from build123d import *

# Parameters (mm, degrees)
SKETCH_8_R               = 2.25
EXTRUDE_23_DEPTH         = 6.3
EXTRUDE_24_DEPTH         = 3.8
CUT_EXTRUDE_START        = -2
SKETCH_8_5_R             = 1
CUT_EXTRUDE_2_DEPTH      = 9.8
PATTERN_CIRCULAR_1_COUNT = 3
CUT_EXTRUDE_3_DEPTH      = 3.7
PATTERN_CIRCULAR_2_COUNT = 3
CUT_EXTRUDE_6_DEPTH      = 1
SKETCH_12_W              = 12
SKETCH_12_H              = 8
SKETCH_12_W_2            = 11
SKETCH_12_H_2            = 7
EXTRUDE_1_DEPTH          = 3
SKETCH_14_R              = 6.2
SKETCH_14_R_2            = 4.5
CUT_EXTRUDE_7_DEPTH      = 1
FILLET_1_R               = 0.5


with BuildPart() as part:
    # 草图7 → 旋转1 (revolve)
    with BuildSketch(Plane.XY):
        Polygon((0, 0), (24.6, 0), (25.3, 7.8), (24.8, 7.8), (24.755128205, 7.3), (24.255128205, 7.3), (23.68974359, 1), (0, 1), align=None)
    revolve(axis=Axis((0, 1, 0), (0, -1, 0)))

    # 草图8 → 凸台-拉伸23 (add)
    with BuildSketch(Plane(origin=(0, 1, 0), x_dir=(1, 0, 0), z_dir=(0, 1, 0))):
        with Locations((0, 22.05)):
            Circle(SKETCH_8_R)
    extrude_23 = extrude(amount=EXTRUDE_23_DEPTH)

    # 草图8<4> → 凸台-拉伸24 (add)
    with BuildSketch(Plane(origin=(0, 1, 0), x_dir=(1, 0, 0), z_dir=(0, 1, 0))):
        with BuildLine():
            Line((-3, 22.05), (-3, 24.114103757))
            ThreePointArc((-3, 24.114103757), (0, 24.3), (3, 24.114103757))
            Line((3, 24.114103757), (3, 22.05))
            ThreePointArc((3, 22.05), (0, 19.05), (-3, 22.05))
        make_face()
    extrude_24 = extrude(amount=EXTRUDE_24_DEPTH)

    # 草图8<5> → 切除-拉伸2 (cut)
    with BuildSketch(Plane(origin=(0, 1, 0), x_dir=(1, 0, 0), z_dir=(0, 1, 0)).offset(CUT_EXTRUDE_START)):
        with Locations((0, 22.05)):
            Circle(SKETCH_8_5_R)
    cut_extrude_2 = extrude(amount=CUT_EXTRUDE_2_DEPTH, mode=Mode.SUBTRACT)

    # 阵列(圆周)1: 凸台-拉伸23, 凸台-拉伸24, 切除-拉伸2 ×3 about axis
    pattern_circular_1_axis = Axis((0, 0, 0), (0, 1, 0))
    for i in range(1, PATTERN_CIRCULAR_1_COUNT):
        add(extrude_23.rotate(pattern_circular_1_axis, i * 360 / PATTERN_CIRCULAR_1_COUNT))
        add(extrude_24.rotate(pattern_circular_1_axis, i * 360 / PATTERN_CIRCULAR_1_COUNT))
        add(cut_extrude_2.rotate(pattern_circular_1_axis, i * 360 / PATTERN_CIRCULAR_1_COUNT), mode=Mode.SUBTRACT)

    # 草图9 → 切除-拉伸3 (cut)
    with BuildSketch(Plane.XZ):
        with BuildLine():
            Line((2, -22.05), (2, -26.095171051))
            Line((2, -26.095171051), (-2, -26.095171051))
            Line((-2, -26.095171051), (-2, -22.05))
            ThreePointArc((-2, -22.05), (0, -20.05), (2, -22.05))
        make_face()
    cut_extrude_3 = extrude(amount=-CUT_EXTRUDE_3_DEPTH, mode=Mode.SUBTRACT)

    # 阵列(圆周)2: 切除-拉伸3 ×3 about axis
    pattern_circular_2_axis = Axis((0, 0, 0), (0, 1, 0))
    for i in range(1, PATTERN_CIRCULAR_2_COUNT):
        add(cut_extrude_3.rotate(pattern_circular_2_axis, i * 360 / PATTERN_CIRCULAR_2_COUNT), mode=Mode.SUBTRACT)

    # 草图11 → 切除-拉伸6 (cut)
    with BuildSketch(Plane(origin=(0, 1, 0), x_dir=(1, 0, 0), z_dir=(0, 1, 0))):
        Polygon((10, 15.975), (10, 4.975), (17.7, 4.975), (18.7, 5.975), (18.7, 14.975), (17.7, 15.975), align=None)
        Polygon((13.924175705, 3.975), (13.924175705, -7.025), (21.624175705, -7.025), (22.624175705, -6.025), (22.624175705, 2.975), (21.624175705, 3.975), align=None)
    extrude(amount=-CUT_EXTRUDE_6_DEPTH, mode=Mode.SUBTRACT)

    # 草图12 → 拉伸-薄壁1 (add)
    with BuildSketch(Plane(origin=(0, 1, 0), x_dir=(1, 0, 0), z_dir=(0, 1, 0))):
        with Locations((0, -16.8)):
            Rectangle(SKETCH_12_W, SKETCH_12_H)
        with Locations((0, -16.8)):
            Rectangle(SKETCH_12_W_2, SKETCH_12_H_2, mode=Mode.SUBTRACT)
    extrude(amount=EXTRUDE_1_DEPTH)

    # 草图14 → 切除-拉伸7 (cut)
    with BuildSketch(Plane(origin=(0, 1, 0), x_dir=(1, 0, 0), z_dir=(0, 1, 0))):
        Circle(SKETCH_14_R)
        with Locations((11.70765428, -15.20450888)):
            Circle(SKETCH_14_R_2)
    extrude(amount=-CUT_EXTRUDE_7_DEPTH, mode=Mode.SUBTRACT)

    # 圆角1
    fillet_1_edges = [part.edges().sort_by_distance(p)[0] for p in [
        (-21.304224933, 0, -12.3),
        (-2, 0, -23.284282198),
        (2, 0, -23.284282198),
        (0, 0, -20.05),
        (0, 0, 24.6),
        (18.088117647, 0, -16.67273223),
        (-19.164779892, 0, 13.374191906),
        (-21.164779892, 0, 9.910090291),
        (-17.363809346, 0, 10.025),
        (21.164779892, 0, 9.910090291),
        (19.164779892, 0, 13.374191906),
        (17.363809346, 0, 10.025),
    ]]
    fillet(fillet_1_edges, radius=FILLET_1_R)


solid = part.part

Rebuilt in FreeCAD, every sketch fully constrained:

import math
import FreeCAD as App
import Part
import Sketcher
Q = App.Units.Quantity


def edges_at(feature, points):
    """Names of the edges that pass closest to the given points."""
    edges = feature.Shape.Edges
    near = lambda p: min(range(len(edges)), key=lambda i: edges[i].distToShape(Part.Vertex(*p))[0])
    return sorted({f"Edge{near(p) + 1}" for p in points})


def add_polygon(sketch, points):
    """Adds a closed chain of lines whose ends are joined by coincident constraints."""
    first, n = sketch.GeometryCount, len(points)
    for a, b in zip(points, points[1:] + points[:1]):
        sketch.addGeometry(Part.LineSegment(App.Vector(*a, 0), App.Vector(*b, 0)), False)
    for i in range(n):
        sketch.addConstraint(Sketcher.Constraint("Coincident", first + i, 2, first + (i + 1) % n, 1))

doc = App.newDocument("Part")
body = doc.addObject("PartDesign::Body", "Body")

# Sketch on XY plane
sketch1 = doc.addObject("Sketcher::SketchObject", "Sketch")
body.addObject(sketch1)
sketch1.AttachmentSupport = (doc.XY_Plane, [""])
sketch1.MapMode = "FlatFace"
add_polygon(sketch1, [(0, 0), (24.6, 0), (25.3, 7.8), (24.8, 7.8), (24.8, 7.3), (24.3, 7.3), (23.7, 1), (0, 1)])  # lines 0-7
sketch1.addConstraint([
    Sketcher.Constraint("Horizontal", 0),
    Sketcher.Constraint("Horizontal", 2),
    Sketcher.Constraint("Horizontal", 4),
    Sketcher.Constraint("Horizontal", 6),
    Sketcher.Constraint("Vertical", 7),
    Sketcher.Constraint("Coincident", 7, 2, -1, 1),
    Sketcher.Constraint("Parallel", 1, 3),
    Sketcher.Constraint("Parallel", 3, 5),
    Sketcher.Constraint("Equal", 2, 4),
    Sketcher.Constraint("DistanceY", 7, 2, 7, 1, Q("1 mm")),
    Sketcher.Constraint("DistanceX", 0, 1, 0, 2, Q("24.6 mm")),
    Sketcher.Constraint("DistanceX", 2, 2, 2, 1, Q("0.5 mm")),
    Sketcher.Constraint("DistanceX", -1, 1, 1, 2, Q("25.3 mm")),
    Sketcher.Constraint("DistanceY", -1, 1, 1, 2, Q("7.8 mm")),
    Sketcher.Constraint("DistanceY", -1, 1, 3, 2, Q("7.3 mm")),
])
revolution = doc.addObject("PartDesign::Revolution", "Revolution")
body.addObject(revolution)
revolution.Profile = sketch1
revolution.ReferenceAxis = (sketch1, ["V_Axis"])
revolution.Angle = 360

# Sketch on XZ plane
sketch2 = doc.addObject("Sketcher::SketchObject", "Sketch001")
body.addObject(sketch2)
sketch2.AttachmentSupport = (doc.XZ_Plane, [""])
sketch2.MapMode = "FlatFace"
sketch2.AttachmentOffset = App.Placement(App.Vector(0, 0, -1), App.Rotation())
sketch2.addGeometry(Part.Circle(App.Vector(0, -22.1, 0), App.Vector(0, 0, 1), 2.2), False)
sketch2.addConstraint([
    Sketcher.Constraint("PointOnObject", 0, 3, -2),
    Sketcher.Constraint("Diameter", 0, Q("4.5 mm")),
    Sketcher.Constraint("DistanceY", 0, 3, -1, 1, Q("22.05 mm")),
])
pad1 = doc.addObject("PartDesign::Pad", "Pad")
body.addObject(pad1)
pad1.Profile = sketch2
pad1.Length = 6.3
pad1.Reversed = True

# Sketch on XZ plane
sketch3 = doc.addObject("Sketcher::SketchObject", "Sketch002")
body.addObject(sketch3)
sketch3.AttachmentSupport = (doc.XZ_Plane, [""])
sketch3.MapMode = "FlatFace"
sketch3.AttachmentOffset = App.Placement(App.Vector(0, 0, -1), App.Rotation())
sketch3.addGeometry([
    Part.LineSegment(App.Vector(-3, -24.1, 0), App.Vector(-3, -22.1, 0)),
    Part.ArcOfCircle(Part.Circle(App.Vector(0, -22.1, 0), App.Vector(0, 0, 1), 3), math.radians(0), math.radians(180)),
    Part.LineSegment(App.Vector(3, -22.1, 0), App.Vector(3, -24.1, 0)),
    Part.ArcOfCircle(Part.Circle(App.Vector(0, 0, 0), App.Vector(0, 0, 1), 24.3), math.radians(-97.09), math.radians(-82.91)),
], False)
sketch3.addConstraint([
    Sketcher.Constraint("Tangent", 0, 2, 1, 2),
    Sketcher.Constraint("Tangent", 1, 1, 2, 1),
    Sketcher.Constraint("Coincident", 2, 2, 3, 2),
    Sketcher.Constraint("Coincident", 3, 1, 0, 1),
    Sketcher.Constraint("Vertical", 0),
    Sketcher.Constraint("Vertical", 2),
    Sketcher.Constraint("Coincident", 3, 3, -1, 1),
    Sketcher.Constraint("PointOnObject", 1, 3, -2),
    Sketcher.Constraint("Radius", 1, Q("3 mm")),
    Sketcher.Constraint("Radius", 3, Q("24.3 mm")),
    Sketcher.Constraint("DistanceY", 1, 3, -1, 1, Q("22.05 mm")),
])
pad2 = doc.addObject("PartDesign::Pad", "Pad001")
body.addObject(pad2)
pad2.Profile = sketch3
pad2.Length = 3.8
pad2.Reversed = True

# Sketch on XZ plane
sketch4 = doc.addObject("Sketcher::SketchObject", "Sketch003")
body.addObject(sketch4)
sketch4.AttachmentSupport = (doc.XZ_Plane, [""])
sketch4.MapMode = "FlatFace"
sketch4.AttachmentOffset = App.Placement(App.Vector(0, 0, 1), App.Rotation())
sketch4.addGeometry(Part.Circle(App.Vector(0, -22.1, 0), App.Vector(0, 0, 1), 1), False)
sketch4.addConstraint([
    Sketcher.Constraint("PointOnObject", 0, 3, -2),
    Sketcher.Constraint("Diameter", 0, Q("2 mm")),
    Sketcher.Constraint("DistanceY", 0, 3, -1, 1, Q("22.05 mm")),
])
pocket1 = doc.addObject("PartDesign::Pocket", "Pocket")
body.addObject(pocket1)
pocket1.Profile = sketch4
pocket1.Length = 9.8
doc.recompute()

polarpattern = doc.addObject("PartDesign::PolarPattern", "PolarPattern")
body.addObject(polarpattern)
polarpattern.Originals = [pad1, pad2, pocket1]
polarpattern.Axis = (doc.Y_Axis, [""])
polarpattern.Angle = 360
polarpattern.Occurrences = 3
body.Tip = polarpattern

# Sketch on XZ plane
sketch5 = doc.addObject("Sketcher::SketchObject", "Sketch004")
body.addObject(sketch5)
sketch5.AttachmentSupport = (doc.XZ_Plane, [""])
sketch5.MapMode = "FlatFace"
sketch5.addGeometry([
    Part.LineSegment(App.Vector(2, -26.1, 0), App.Vector(2, -22.1, 0)),
    Part.ArcOfCircle(Part.Circle(App.Vector(0, -22.1, 0), App.Vector(0, 0, 1), 2), math.radians(0), math.radians(180)),
    Part.LineSegment(App.Vector(-2, -22.1, 0), App.Vector(-2, -26.1, 0)),
    Part.LineSegment(App.Vector(-2, -26.1, 0), App.Vector(2, -26.1, 0)),
], False)
sketch5.addConstraint([
    Sketcher.Constraint("Tangent", 0, 2, 1, 1),
    Sketcher.Constraint("Tangent", 1, 2, 2, 1),
    Sketcher.Constraint("Coincident", 2, 2, 3, 1),
    Sketcher.Constraint("Coincident", 3, 2, 0, 1),
    Sketcher.Constraint("Vertical", 0),
    Sketcher.Constraint("Vertical", 2),
    Sketcher.Constraint("Horizontal", 3),
    Sketcher.Constraint("PointOnObject", 1, 3, -2),
    Sketcher.Constraint("Radius", 1, Q("2 mm")),
    Sketcher.Constraint("DistanceY", 1, 3, -1, 1, Q("22.05 mm")),
    Sketcher.Constraint("DistanceY", 0, 1, 0, 2, Q("4.045171 mm")),
])
pocket2 = doc.addObject("PartDesign::Pocket", "Pocket001")
body.addObject(pocket2)
pocket2.Profile = sketch5
pocket2.Length = 3.7
doc.recompute()

polarpattern2 = doc.addObject("PartDesign::PolarPattern", "PolarPattern001")
body.addObject(polarpattern2)
polarpattern2.Originals = [pocket2]
polarpattern2.Axis = (doc.Y_Axis, [""])
polarpattern2.Angle = 360
polarpattern2.Occurrences = 3
body.Tip = polarpattern2

# Sketch on XZ plane
sketch6 = doc.addObject("Sketcher::SketchObject", "Sketch005")
body.addObject(sketch6)
sketch6.AttachmentSupport = (doc.XZ_Plane, [""])
sketch6.MapMode = "FlatFace"
sketch6.AttachmentOffset = App.Placement(App.Vector(0, 0, -1), App.Rotation())
add_polygon(sketch6, [(10, -16), (10, -5), (17.7, -5), (18.7, -6), (18.7, -15), (17.7, -16)])  # lines 0-5
add_polygon(sketch6, [(13.9, -4), (13.9, 7), (21.6, 7), (22.6, 6), (22.6, -3), (21.6, -4)])  # lines 6-11
sketch6.addConstraint([
    Sketcher.Constraint("Vertical", 0),
    Sketcher.Constraint("Horizontal", 1),
    Sketcher.Constraint("Vertical", 3),
    Sketcher.Constraint("Horizontal", 5),
    Sketcher.Constraint("Vertical", 6),
    Sketcher.Constraint("Horizontal", 7),
    Sketcher.Constraint("Vertical", 9),
    Sketcher.Constraint("Horizontal", 11),
    Sketcher.Constraint("Perpendicular", 2, 4),
    Sketcher.Constraint("Perpendicular", 4, 8),
    Sketcher.Constraint("Perpendicular", 8, 10),
    Sketcher.Constraint("Vertical", 1, 2, 4, 2),
    Sketcher.Constraint("Vertical", 7, 2, 10, 2),
    Sketcher.Constraint("Equal", 5, 7),
    Sketcher.Constraint("Equal", 0, 6),
    Sketcher.Constraint("Equal", 3, 9),
    Sketcher.Constraint("Equal", 2, 4),
    Sketcher.Constraint("DistanceY", 0, 1, 0, 2, Q("11 mm")),
    Sketcher.Constraint("DistanceY", 3, 2, 3, 1, Q("9 mm")),
    Sketcher.Constraint("DistanceX", 1, 1, 1, 2, Q("7.7 mm")),
    Sketcher.Constraint("DistanceX", -1, 1, 0, 2, Q("10 mm")),
    Sketcher.Constraint("DistanceY", 1, 2, 6, 2, Q("12 mm")),
    Sketcher.Constraint("DistanceY", 0, 2, -1, 1, Q("4.975 mm")),
    Sketcher.Constraint("DistanceX", -1, 1, 6, 2, Q("13.924176 mm")),
])
pocket3 = doc.addObject("PartDesign::Pocket", "Pocket002")
body.addObject(pocket3)
pocket3.Profile = sketch6
pocket3.Length = 1
pocket3.Reversed = True

# Sketch on XZ plane
sketch7 = doc.addObject("Sketcher::SketchObject", "Sketch006")
body.addObject(sketch7)
sketch7.AttachmentSupport = (doc.XZ_Plane, [""])
sketch7.MapMode = "FlatFace"
sketch7.AttachmentOffset = App.Placement(App.Vector(0, 0, -1), App.Rotation())
add_polygon(sketch7, [(-6, 13), (-6, 21), (6, 21), (6, 13)])  # lines 0-3
add_polygon(sketch7, [(6, 20), (-6, 20), (-6, 13), (6, 13)])  # lines 4-7
sketch7.addConstraint([
    Sketcher.Constraint("Vertical", 0),
    Sketcher.Constraint("Horizontal", 1),
    Sketcher.Constraint("Vertical", 2),
    Sketcher.Constraint("Horizontal", 3),
    Sketcher.Constraint("Horizontal", 4),
    Sketcher.Constraint("Vertical", 5),
    Sketcher.Constraint("Horizontal", 6),
    Sketcher.Constraint("Vertical", 7),
    Sketcher.Constraint("DistanceX", 1, 1, 1, 2, Q("12 mm")),
    Sketcher.Constraint("DistanceX", 4, 2, 4, 1, Q("11 mm")),
    Sketcher.Constraint("DistanceY", 0, 1, 0, 2, Q("8 mm")),
    Sketcher.Constraint("DistanceY", 5, 2, 5, 1, Q("7 mm")),
    Sketcher.Constraint("DistanceX", 0, 2, -1, 1, Q("6 mm")),
    Sketcher.Constraint("DistanceY", -1, 1, 0, 2, Q("20.8 mm")),
    Sketcher.Constraint("DistanceX", 4, 2, -1, 1, Q("5.5 mm")),
    Sketcher.Constraint("DistanceY", -1, 1, 4, 2, Q("20.3 mm")),
])
pad3 = doc.addObject("PartDesign::Pad", "Pad002")
body.addObject(pad3)
pad3.Profile = sketch7
pad3.Length = 3
pad3.Reversed = True

# Sketch on XZ plane
sketch8 = doc.addObject("Sketcher::SketchObject", "Sketch007")
body.addObject(sketch8)
sketch8.AttachmentSupport = (doc.XZ_Plane, [""])
sketch8.MapMode = "FlatFace"
sketch8.AttachmentOffset = App.Placement(App.Vector(0, 0, -1), App.Rotation())
sketch8.addGeometry([
    Part.Circle(App.Vector(0, 0, 0), App.Vector(0, 0, 1), 6.2),
    Part.Circle(App.Vector(11.7, 15.2, 0), App.Vector(0, 0, 1), 4.5),
], False)
sketch8.addConstraint([
    Sketcher.Constraint("Coincident", 0, 3, -1, 1),
    Sketcher.Constraint("Diameter", 1, Q("9 mm")),
    Sketcher.Constraint("Diameter", 0, Q("12.4 mm")),
    Sketcher.Constraint("DistanceY", -1, 1, 1, 3, Q("15.204509 mm")),
    Sketcher.Constraint("DistanceX", -1, 1, 1, 3, Q("11.707654 mm")),
])
pocket4 = doc.addObject("PartDesign::Pocket", "Pocket003")
body.addObject(pocket4)
pocket4.Profile = sketch8
pocket4.Length = 1
pocket4.Reversed = True
doc.recompute()

fillet = doc.addObject("PartDesign::Fillet", "Fillet")
body.addObject(fillet)
fillet.Base = (pocket4, edges_at(pocket4, [
    (-21.304, 0, -12.3),
    (-2, 0, -23.284),
    (2, 0, -23.284),
    (0, 0, -20.05),
    (0, 0, 24.6),
    (18.088, 0, -16.673),
    (-19.165, 0, 13.374),
    (-21.165, 0, 9.91),
    (-17.364, 0, 10.025),
    (21.165, 0, 9.91),
    (19.165, 0, 13.374),
    (17.364, 0, 10.025),
]))
fillet.Radius = 0.5

doc.recompute()
